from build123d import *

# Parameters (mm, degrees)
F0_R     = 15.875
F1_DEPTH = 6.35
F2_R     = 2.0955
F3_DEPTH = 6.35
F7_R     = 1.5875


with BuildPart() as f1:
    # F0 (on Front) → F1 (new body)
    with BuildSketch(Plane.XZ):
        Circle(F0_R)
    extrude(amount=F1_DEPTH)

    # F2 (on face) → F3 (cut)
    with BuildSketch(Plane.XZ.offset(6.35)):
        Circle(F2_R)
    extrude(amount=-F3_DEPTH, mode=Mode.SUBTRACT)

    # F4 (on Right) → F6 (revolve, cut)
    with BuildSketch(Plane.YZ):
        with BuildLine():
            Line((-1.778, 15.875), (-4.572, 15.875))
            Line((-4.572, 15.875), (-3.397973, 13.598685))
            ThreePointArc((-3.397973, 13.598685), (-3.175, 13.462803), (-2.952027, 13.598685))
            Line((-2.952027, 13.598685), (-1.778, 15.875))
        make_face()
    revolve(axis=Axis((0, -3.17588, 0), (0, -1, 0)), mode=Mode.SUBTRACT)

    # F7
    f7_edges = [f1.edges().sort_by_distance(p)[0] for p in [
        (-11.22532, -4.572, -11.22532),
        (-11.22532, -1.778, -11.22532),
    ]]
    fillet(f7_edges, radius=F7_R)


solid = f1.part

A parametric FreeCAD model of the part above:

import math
import FreeCAD as App
import Part
import Sketcher
Q = App.Units.Quantity


def edges_at(feature, points):
    """Names of the edges that pass closest to the given points."""
    edges = feature.Shape.Edges
    near = lambda p: min(range(len(edges)), key=lambda i: edges[i].distToShape(Part.Vertex(*p))[0])
    return sorted({f"Edge{near(p) + 1}" for p in points})

doc = App.newDocument("Part")
body = doc.addObject("PartDesign::Body", "Body")

sketch1 = body.newObject("Sketcher::SketchObject", "Sketch")
sketch1.AttachmentSupport = (doc.getObject("XZ_Plane"), [""])
sketch1.MapMode = "FlatFace"
sketch1.addGeometry(Part.Circle(App.Vector(0, 0, 0), App.Vector(0, 0, 1), 15.875), False)
sketch1.addConstraint([
    Sketcher.Constraint("Coincident", 0, 3, -1, 1),
    Sketcher.Constraint("Diameter", 0, Q("1.25 in")),
])
pad1 = body.newObject("PartDesign::Pad", "Pad")
pad1.Profile = sketch1
pad1.Length = Q("0.25 in")

sketch2 = body.newObject("Sketcher::SketchObject", "Sketch001")
sketch2.AttachmentSupport = (doc.getObject("XZ_Plane"), [""])
sketch2.MapMode = "FlatFace"
sketch2.AttachmentOffset = App.Placement(App.Vector(0, 0, 0.25 * 25.4), App.Rotation())
sketch2.addGeometry(Part.Circle(App.Vector(0, 0, 0), App.Vector(0, 0, 1), 2.0955), False)
sketch2.addConstraint([
    Sketcher.Constraint("Coincident", 0, 3, -1, 1),
    Sketcher.Constraint("Diameter", 0, Q("0.165 in")),
])
pocket1 = body.newObject("PartDesign::Pocket", "Pocket")
pocket1.Profile = sketch2
pocket1.Length = Q("0.25 in")

sketch3 = body.newObject("Sketcher::SketchObject", "Sketch002")
sketch3.AttachmentSupport = (doc.getObject("YZ_Plane"), [""])
sketch3.MapMode = "FlatFace"
sketch3.addGeometry([
    Part.LineSegment(App.Vector(-1.778, 15.875, 0), App.Vector(-4.572, 15.875, 0)),
    Part.LineSegment(App.Vector(-4.572, 15.875, 0), App.Vector(-3.397973, 13.598685, 0)),
    Part.ArcOfCircle(Part.Circle(App.Vector(-3.175, 13.713686, 0), App.Vector(0, 0, 1), 0.250883), math.radians(-152.717104), math.radians(-27.282896)),
    Part.LineSegment(App.Vector(-2.952027, 13.598685, 0), App.Vector(-1.778, 15.875, 0)),
], False)
sketch3.addConstraint([
    Sketcher.Constraint("Coincident", 0, 2, 1, 1),
    Sketcher.Constraint("Coincident", 1, 2, 2, 1),
    Sketcher.Constraint("Coincident", 2, 2, 3, 1),
    Sketcher.Constraint("Coincident", 3, 2, 0, 1),
    Sketcher.Constraint("Horizontal", 0),
    Sketcher.Constraint("Horizontal", 1, 2, 2, 2),
    Sketcher.Constraint("Equal", 1, 3),
    Sketcher.Constraint("DistanceX", 0, 2, 0, 1, Q("0.11 in")),
    Sketcher.Constraint("DistanceX", 0, 2, -1, 1, Q("0.18 in")),
    Sketcher.Constraint("DistanceY", -1, 1, 0, 2, Q("0.625 in")),
    Sketcher.Constraint("Radius", 2, Q("0.250883 mm")),
    Sketcher.Constraint("DistanceY", 1, 2, 2, 3, Q("0.115001 mm")),
    Sketcher.Constraint("Distance", 1, Q("2.56124 mm")),
])
groove = body.newObject("PartDesign::Groove", "Groove")
groove.Profile = sketch3
groove.ReferenceAxis = (sketch3, ["H_Axis"])
groove.Angle = 360
doc.recompute()

fillet = body.newObject("PartDesign::Fillet", "Fillet")
fillet.Base = (groove, edges_at(groove, [(-11.225, -4.572, -11.225), (-11.225, -1.778, -11.225)]))
fillet.Radius = Q("0.0625 in")

doc.recompute()
